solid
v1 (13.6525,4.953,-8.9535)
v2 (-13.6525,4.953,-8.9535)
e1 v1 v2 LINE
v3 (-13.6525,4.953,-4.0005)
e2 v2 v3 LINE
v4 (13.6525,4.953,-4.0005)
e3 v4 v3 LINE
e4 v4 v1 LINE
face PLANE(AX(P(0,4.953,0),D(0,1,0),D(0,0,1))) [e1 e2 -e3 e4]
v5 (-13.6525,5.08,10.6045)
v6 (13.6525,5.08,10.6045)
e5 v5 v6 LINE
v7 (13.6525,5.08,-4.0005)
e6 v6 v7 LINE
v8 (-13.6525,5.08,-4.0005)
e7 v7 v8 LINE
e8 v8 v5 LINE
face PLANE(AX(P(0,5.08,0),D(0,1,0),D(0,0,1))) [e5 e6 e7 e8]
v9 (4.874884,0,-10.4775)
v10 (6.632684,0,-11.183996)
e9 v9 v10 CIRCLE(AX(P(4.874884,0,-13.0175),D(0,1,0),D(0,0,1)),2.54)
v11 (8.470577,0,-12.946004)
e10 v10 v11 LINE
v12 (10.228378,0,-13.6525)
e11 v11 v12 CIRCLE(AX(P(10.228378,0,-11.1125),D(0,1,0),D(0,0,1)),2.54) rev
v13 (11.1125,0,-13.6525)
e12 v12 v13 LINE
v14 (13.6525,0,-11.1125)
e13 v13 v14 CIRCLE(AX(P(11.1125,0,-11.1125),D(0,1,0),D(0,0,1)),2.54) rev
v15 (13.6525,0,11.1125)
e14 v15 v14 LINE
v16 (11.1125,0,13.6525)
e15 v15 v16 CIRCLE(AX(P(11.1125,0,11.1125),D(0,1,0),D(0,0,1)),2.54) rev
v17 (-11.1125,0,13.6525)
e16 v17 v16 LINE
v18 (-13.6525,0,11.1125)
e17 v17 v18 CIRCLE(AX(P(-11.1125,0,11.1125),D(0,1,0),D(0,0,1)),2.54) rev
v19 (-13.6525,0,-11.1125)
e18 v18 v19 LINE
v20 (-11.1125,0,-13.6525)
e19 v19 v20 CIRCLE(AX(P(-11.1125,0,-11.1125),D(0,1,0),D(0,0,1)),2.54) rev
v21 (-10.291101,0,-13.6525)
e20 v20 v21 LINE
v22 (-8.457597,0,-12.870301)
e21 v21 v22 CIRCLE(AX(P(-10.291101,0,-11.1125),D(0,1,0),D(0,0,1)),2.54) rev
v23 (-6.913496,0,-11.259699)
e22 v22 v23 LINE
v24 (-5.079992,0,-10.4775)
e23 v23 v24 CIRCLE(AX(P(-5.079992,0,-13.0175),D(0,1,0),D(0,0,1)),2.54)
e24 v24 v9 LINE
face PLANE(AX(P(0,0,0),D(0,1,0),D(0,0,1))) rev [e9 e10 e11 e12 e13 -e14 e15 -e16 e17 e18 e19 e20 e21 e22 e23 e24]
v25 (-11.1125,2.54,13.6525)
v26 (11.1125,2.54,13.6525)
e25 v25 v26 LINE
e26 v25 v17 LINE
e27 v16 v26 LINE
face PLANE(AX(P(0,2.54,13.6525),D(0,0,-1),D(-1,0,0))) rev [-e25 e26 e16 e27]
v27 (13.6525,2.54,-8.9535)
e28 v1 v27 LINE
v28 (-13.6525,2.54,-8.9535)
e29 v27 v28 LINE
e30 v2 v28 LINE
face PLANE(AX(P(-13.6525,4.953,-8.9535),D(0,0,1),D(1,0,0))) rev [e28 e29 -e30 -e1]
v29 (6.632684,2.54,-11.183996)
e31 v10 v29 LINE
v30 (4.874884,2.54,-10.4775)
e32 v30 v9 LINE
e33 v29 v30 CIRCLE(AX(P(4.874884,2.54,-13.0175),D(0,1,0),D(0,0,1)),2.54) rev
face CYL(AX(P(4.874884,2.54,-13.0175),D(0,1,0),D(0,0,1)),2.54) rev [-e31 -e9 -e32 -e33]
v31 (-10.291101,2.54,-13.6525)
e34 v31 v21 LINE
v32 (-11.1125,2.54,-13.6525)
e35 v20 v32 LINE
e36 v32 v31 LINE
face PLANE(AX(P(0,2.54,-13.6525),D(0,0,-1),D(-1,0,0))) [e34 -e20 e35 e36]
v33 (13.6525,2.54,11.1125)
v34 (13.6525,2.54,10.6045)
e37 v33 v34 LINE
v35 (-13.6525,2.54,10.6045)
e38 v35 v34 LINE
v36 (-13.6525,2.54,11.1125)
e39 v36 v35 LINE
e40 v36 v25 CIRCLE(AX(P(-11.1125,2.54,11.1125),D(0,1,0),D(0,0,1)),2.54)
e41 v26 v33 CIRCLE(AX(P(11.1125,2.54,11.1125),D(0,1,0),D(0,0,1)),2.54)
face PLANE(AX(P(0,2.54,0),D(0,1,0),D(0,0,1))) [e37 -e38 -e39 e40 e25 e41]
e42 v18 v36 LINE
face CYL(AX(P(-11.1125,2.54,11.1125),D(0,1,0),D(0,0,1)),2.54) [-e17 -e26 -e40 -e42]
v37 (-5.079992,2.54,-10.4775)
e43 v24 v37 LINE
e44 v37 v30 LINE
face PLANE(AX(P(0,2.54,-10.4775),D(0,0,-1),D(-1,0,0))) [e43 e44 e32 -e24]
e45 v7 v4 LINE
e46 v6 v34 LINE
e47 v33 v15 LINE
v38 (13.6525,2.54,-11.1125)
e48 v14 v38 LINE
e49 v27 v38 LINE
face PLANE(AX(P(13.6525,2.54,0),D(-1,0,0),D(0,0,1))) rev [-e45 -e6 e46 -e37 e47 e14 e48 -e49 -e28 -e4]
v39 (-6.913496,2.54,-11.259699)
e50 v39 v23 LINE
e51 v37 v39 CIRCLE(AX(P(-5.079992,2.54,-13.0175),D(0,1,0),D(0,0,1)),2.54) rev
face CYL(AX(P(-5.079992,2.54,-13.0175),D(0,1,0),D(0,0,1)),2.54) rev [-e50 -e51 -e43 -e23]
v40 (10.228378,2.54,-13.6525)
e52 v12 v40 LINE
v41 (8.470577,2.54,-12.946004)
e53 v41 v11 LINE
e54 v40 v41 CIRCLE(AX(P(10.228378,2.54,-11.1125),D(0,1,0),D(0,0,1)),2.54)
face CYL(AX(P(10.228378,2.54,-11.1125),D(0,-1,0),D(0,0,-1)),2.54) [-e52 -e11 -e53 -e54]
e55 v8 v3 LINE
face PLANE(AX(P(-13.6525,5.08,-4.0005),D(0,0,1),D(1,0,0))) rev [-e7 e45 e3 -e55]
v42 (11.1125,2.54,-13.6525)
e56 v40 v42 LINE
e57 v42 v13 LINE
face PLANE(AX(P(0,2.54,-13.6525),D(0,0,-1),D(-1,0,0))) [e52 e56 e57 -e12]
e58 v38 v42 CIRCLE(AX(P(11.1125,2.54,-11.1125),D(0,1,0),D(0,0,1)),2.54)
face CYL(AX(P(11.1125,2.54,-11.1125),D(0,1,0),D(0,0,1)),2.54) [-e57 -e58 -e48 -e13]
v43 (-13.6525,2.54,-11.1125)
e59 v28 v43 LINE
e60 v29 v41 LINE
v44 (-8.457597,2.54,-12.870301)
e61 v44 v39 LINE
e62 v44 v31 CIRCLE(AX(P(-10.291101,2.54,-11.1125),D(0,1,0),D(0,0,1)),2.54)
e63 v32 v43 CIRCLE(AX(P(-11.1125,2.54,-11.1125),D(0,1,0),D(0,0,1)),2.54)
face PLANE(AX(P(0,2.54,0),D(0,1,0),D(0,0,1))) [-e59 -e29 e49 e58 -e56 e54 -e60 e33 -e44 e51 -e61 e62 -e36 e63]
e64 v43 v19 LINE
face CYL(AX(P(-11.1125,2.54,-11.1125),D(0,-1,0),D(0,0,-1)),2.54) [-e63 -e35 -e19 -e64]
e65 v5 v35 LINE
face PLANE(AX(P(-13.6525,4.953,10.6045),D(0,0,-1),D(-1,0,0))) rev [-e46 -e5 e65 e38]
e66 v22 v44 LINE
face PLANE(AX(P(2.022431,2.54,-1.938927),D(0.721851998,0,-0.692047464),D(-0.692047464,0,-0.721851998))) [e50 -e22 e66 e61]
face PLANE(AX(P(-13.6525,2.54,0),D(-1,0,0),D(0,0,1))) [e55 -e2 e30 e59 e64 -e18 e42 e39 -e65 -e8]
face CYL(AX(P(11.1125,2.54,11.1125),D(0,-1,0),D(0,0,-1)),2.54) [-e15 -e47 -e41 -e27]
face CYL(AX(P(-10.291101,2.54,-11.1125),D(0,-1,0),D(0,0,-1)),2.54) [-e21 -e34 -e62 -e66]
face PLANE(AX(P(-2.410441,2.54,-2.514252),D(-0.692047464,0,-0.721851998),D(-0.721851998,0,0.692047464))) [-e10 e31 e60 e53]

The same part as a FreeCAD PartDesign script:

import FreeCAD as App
import Part
import Sketcher
Q = App.Units.Quantity


def edges_at(feature, points):
    """Names of the edges that pass closest to the given points."""
    edges = feature.Shape.Edges
    near = lambda p: min(range(len(edges)), key=lambda i: edges[i].distToShape(Part.Vertex(*p))[0])
    return sorted({f"Edge{near(p) + 1}" for p in points})

doc = App.newDocument("Part")
body = doc.addObject("PartDesign::Body", "Body")

# Sketch on XZ plane
sketch1 = body.newObject("Sketcher::SketchObject", "Sketch")
sketch1.AttachmentSupport = (doc.getObject("XZ_Plane"), [""])
sketch1.MapMode = "FlatFace"
sketch1.addGeometry([
    Part.LineSegment(App.Vector(-6.2, -10.5, 0), App.Vector(-9.2, -13.7, 0)),  # 0
    Part.LineSegment(App.Vector(-9.2, -13.7, 0), App.Vector(-13.7, -13.7, 0)),  # 1
    Part.LineSegment(App.Vector(-13.7, -13.7, 0), App.Vector(-13.7, 13.7, 0)),  # 2
    Part.LineSegment(App.Vector(-13.7, 13.7, 0), App.Vector(13.7, 13.7, 0)),  # 3
    Part.LineSegment(App.Vector(13.7, 13.7, 0), App.Vector(13.7, -13.7, 0)),  # 4
    Part.LineSegment(App.Vector(13.7, -13.7, 0), App.Vector(9.2, -13.7, 0)),  # 5
    Part.LineSegment(App.Vector(9.2, -13.7, 0), App.Vector(5.9, -10.5, 0)),  # 6
    Part.LineSegment(App.Vector(5.9, -10.5, 0), App.Vector(-6.2, -10.5, 0)),  # 7
], False)
sketch1.addConstraint([
    Sketcher.Constraint("Coincident", 0, 2, 1, 1),
    Sketcher.Constraint("Coincident", 1, 2, 2, 1),
    Sketcher.Constraint("Coincident", 2, 2, 3, 1),
    Sketcher.Constraint("Coincident", 3, 2, 4, 1),
    Sketcher.Constraint("Coincident", 4, 2, 5, 1),
    Sketcher.Constraint("Coincident", 5, 2, 6, 1),
    Sketcher.Constraint("Coincident", 6, 2, 7, 1),
    Sketcher.Constraint("Coincident", 7, 2, 0, 1),
    Sketcher.Constraint("Horizontal", 1),
    Sketcher.Constraint("Vertical", 2),
    Sketcher.Constraint("Horizontal", 3),
    Sketcher.Constraint("Vertical", 4),
    Sketcher.Constraint("Horizontal", 5),
    Sketcher.Constraint("Horizontal", 7),
    Sketcher.Constraint("Symmetric", 1, 2, 3, 2, -1, 1),
    Sketcher.Constraint("Symmetric", 0, 2, 5, 2, -2),
    Sketcher.Constraint("Perpendicular", 0, 6),
    Sketcher.Constraint("Equal", 3, 2),
    Sketcher.Constraint("DistanceX", 0, 2, 3, 2, Q("0.9 in")),
    Sketcher.Constraint("DistanceX", 1, 2, 1, 1, Q("0.175 in")),
    Sketcher.Constraint("DistanceY", 6, 2, 3, 2, Q("0.95 in")),
    Sketcher.Constraint("Distance", 0, Q("4.398409 mm")),
])
pad1 = body.newObject("PartDesign::Pad", "Pad")
pad1.Profile = sketch1
pad1.Length = Q("0.1 in")
pad1.Reversed = True
doc.recompute()

fillet = body.newObject("PartDesign::Fillet", "Fillet")
fillet.Base = (pad1, edges_at(pad1, [
    (9.207, 1.27, -13.652),
    (13.652, 1.27, -13.652),
    (13.652, 1.27, 13.652),
    (-13.652, 1.27, 13.652),
    (-13.652, 1.27, -13.652),
    (-9.207, 1.27, -13.652),
    (-6.164, 1.27, -10.477),
    (5.896, 1.27, -10.477),
]))
fillet.Radius = Q("0.1 in")

# Sketch on XZ plane
sketch2 = body.newObject("Sketcher::SketchObject", "Sketch001")
sketch2.AttachmentSupport = (doc.getObject("XZ_Plane"), [""])
sketch2.MapMode = "FlatFace"
sketch2.AttachmentOffset = App.Placement(App.Vector(0, 0, -0.1 * 25.4), App.Rotation())
sketch2.addGeometry([
    Part.LineSegment(App.Vector(-14, -9, 0), App.Vector(-14, 11, 0)),
    Part.LineSegment(App.Vector(-14, 11, 0), App.Vector(14, 11, 0)),
    Part.LineSegment(App.Vector(14, 11, 0), App.Vector(14, -9, 0)),
    Part.LineSegment(App.Vector(14, -9, 0), App.Vector(-14, -9, 0)),
], False)
sketch2.addConstraint([
    Sketcher.Constraint("Coincident", 0, 2, 1, 1),
    Sketcher.Constraint("Coincident", 1, 2, 2, 1),
    Sketcher.Constraint("Coincident", 2, 2, 3, 1),
    Sketcher.Constraint("Coincident", 3, 2, 0, 1),
    Sketcher.Constraint("Vertical", 0),
    Sketcher.Constraint("Horizontal", 1),
    Sketcher.Constraint("Vertical", 2),
    Sketcher.Constraint("Horizontal", 3),
    Sketcher.Constraint("DistanceY", 0, 1, 0, 2, Q("0.77 in")),
    Sketcher.Constraint("DistanceX", 1, 1, 1, 2, Q("1.075 in")),
    Sketcher.Constraint("DistanceX", 0, 2, -1, 1, Q("0.5375 in")),
    Sketcher.Constraint("DistanceY", -1, 1, 0, 2, Q("0.4175 in")),
])
pad2 = body.newObject("PartDesign::Pad", "Pad001")
pad2.Profile = sketch2
pad2.Length = Q("0.095 in")
pad2.Reversed = True

# Sketch on XZ plane
sketch3 = body.newObject("Sketcher::SketchObject", "Sketch002")
sketch3.AttachmentSupport = (doc.getObject("XZ_Plane"), [""])
sketch3.MapMode = "FlatFace"
sketch3.AttachmentOffset = App.Placement(App.Vector(0, 0, -0.195 * 25.4), App.Rotation())
sketch3.addGeometry([
    Part.LineSegment(App.Vector(-14, -4, 0), App.Vector(-14, 11, 0)),
    Part.LineSegment(App.Vector(-14, 11, 0), App.Vector(14, 11, 0)),
    Part.LineSegment(App.Vector(14, 11, 0), App.Vector(14, -4, 0)),
    Part.LineSegment(App.Vector(14, -4, 0), App.Vector(-14, -4, 0)),
], False)
sketch3.addConstraint([
    Sketcher.Constraint("Coincident", 0, 2, 1, 1),
    Sketcher.Constraint("Coincident", 1, 2, 2, 1),
    Sketcher.Constraint("Coincident", 2, 2, 3, 1),
    Sketcher.Constraint("Coincident", 3, 2, 0, 1),
    Sketcher.Constraint("Vertical", 0),
    Sketcher.Constraint("Horizontal", 1),
    Sketcher.Constraint("Vertical", 2),
    Sketcher.Constraint("Horizontal", 3),
    Sketcher.Constraint("DistanceX", 1, 1, 1, 2, Q("1.075 in")),
    Sketcher.Constraint("DistanceY", 0, 1, 0, 2, Q("0.575 in")),
    Sketcher.Constraint("DistanceX", 0, 2, -1, 1, Q("0.5375 in")),
    Sketcher.Constraint("DistanceY", -1, 1, 0, 2, Q("0.4175 in")),
])
pad3 = body.newObject("PartDesign::Pad", "Pad002")
pad3.Profile = sketch3
pad3.Length = Q("0.005 in")
pad3.Reversed = True

doc.recompute()
